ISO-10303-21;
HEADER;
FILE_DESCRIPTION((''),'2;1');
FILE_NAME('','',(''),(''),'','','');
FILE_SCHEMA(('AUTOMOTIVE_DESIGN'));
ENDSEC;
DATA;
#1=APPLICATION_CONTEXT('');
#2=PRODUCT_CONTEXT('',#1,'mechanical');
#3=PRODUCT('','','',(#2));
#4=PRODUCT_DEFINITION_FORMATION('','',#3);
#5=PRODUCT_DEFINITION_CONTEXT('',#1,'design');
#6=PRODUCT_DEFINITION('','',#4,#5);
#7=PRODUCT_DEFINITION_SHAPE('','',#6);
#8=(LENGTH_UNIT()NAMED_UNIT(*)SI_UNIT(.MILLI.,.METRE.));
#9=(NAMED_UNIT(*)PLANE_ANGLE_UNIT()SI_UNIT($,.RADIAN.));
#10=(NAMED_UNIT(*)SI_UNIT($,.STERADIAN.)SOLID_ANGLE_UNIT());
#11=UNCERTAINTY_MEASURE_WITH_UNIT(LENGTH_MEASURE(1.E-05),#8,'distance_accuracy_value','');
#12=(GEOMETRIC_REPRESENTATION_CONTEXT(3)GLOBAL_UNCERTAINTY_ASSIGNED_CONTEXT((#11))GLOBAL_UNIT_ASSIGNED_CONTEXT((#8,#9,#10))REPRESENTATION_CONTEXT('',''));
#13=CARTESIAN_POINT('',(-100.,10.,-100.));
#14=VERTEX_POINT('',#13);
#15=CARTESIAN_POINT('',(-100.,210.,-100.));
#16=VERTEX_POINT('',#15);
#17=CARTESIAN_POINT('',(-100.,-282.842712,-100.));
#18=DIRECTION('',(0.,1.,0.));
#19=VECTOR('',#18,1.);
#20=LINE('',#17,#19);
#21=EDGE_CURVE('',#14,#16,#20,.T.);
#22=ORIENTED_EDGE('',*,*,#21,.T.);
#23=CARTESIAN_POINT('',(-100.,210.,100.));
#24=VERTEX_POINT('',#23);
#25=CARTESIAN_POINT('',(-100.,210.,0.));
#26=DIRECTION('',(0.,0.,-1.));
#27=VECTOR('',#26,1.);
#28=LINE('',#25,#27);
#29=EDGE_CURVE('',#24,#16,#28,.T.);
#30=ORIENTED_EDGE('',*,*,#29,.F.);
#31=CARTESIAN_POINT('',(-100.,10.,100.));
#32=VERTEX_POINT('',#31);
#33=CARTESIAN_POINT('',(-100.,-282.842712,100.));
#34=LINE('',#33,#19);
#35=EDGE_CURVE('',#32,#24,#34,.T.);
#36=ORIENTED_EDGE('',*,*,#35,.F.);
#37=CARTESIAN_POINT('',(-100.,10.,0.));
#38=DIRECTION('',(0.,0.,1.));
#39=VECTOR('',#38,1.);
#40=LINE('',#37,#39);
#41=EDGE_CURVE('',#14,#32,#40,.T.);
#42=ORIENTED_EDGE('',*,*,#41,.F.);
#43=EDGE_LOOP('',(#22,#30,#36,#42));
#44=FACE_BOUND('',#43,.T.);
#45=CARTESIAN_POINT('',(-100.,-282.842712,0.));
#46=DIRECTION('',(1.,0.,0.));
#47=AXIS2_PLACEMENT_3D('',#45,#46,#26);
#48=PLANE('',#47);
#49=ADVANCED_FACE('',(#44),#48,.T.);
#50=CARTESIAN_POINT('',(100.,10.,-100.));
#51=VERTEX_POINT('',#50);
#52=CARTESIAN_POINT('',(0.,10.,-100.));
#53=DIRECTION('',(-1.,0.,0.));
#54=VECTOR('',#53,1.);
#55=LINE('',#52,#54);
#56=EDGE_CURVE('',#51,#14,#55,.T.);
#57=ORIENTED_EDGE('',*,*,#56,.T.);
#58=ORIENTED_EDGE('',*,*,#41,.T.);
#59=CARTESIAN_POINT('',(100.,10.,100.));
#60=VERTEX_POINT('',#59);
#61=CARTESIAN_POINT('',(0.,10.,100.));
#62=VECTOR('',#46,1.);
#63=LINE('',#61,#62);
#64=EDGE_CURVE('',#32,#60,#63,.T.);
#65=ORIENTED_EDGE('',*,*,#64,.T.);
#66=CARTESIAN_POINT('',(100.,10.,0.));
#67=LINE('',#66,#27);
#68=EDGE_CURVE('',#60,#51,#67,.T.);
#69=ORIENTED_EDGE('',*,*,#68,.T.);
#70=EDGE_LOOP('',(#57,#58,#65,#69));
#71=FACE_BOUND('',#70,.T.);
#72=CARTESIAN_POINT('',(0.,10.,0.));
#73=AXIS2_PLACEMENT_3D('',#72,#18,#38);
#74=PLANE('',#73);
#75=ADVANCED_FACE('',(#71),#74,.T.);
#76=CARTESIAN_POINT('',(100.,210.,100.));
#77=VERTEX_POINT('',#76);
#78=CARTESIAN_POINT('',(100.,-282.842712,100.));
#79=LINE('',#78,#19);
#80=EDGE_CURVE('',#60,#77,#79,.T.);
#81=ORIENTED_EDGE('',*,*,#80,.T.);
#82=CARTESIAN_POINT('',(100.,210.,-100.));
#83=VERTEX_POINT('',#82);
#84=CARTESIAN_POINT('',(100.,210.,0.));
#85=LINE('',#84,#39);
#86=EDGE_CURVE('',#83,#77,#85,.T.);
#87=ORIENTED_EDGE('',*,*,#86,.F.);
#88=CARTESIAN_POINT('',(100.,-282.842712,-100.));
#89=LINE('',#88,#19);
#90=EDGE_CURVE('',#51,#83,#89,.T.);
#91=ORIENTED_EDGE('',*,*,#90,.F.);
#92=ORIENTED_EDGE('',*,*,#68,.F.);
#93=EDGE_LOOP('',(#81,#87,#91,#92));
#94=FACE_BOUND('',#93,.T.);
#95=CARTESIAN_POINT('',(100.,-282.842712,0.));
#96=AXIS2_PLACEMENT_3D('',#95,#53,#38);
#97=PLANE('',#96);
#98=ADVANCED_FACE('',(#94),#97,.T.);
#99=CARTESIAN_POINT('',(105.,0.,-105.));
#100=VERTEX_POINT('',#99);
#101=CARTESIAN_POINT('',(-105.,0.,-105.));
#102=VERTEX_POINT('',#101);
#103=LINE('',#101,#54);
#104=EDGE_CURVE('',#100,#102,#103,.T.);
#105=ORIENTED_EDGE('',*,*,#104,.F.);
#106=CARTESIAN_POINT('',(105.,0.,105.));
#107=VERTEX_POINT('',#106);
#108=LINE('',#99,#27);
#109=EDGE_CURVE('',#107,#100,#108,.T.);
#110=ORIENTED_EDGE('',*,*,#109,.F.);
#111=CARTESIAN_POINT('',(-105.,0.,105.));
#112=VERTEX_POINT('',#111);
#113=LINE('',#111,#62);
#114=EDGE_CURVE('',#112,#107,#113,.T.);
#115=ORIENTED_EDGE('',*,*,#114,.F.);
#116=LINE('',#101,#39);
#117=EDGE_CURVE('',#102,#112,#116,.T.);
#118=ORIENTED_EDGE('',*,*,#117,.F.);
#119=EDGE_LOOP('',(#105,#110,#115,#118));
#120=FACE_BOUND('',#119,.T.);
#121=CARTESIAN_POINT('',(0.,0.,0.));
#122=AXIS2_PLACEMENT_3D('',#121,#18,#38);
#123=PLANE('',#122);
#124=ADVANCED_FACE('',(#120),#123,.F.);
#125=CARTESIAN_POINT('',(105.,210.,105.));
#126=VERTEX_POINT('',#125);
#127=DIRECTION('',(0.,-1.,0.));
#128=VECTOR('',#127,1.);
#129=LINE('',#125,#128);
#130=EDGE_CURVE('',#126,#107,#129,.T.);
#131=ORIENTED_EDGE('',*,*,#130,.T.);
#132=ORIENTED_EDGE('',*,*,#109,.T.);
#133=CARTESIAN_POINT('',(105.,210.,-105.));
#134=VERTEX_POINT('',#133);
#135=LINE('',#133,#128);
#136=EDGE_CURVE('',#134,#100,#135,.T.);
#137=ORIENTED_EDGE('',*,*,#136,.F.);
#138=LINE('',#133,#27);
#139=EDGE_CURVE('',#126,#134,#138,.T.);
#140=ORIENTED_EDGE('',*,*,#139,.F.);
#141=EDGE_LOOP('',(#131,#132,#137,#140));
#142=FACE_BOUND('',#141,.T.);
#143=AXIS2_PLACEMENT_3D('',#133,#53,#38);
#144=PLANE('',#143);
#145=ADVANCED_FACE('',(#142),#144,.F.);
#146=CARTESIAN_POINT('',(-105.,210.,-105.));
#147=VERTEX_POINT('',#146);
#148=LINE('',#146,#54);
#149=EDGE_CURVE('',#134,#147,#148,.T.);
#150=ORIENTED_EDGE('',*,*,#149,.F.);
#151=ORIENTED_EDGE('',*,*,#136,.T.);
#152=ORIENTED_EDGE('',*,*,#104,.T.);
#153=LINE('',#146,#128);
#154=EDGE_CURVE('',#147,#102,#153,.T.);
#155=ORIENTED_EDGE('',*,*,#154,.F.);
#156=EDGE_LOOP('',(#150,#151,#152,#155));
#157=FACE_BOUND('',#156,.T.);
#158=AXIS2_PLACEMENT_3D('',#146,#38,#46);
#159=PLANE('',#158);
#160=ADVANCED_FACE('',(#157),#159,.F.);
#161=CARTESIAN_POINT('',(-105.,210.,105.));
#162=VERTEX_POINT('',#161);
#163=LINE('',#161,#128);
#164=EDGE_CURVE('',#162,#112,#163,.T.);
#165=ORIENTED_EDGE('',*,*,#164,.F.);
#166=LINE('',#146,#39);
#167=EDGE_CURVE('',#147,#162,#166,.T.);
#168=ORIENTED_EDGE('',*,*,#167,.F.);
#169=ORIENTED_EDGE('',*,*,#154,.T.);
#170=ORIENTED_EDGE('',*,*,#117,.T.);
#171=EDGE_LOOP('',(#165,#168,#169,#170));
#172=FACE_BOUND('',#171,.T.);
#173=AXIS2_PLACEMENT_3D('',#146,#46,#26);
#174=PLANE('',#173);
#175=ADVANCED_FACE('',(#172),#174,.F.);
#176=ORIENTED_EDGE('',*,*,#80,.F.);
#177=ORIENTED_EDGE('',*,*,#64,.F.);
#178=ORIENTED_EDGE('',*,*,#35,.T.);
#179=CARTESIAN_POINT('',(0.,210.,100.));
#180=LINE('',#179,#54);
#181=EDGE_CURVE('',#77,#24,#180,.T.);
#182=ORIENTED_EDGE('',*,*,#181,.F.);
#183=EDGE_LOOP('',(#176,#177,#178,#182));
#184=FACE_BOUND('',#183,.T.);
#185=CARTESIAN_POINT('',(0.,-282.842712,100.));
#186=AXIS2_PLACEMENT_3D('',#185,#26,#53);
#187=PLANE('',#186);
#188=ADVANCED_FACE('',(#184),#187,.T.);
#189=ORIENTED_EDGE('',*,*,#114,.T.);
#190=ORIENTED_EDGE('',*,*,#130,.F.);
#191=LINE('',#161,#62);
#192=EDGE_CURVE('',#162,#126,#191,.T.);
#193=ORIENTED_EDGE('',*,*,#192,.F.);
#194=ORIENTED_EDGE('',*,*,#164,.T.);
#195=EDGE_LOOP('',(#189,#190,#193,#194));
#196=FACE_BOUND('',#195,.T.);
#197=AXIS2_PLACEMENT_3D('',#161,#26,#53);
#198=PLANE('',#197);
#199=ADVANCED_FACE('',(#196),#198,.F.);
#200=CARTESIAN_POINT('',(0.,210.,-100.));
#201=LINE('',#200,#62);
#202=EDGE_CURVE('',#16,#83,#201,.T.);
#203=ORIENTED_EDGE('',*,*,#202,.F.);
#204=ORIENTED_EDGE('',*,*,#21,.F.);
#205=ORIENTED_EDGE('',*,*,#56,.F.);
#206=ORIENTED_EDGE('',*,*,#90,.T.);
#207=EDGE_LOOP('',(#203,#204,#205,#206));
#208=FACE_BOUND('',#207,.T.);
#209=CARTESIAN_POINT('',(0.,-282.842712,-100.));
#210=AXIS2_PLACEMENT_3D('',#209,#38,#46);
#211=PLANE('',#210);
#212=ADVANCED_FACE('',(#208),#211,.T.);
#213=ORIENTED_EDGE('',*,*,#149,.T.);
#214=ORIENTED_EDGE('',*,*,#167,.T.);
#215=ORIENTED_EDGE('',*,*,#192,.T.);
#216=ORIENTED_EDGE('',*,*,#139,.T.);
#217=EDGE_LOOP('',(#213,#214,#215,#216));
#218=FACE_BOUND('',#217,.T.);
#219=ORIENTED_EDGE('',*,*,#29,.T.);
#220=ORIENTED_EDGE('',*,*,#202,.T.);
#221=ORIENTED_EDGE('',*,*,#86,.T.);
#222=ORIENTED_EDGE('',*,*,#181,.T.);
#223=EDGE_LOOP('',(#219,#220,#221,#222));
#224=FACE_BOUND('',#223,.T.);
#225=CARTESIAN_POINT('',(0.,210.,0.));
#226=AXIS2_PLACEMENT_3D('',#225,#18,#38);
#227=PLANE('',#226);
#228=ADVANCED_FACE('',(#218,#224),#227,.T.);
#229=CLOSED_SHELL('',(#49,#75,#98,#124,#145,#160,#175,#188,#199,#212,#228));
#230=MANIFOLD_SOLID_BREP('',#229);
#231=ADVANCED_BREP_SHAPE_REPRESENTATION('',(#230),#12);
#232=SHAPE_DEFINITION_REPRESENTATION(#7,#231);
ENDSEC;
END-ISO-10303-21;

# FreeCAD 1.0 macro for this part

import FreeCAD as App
import Part
import Sketcher

V = App.Vector


def add_polygon(sketch, points):
    """Adds a closed chain of lines whose ends are joined by coincident constraints."""
    first, n = sketch.GeometryCount, len(points)
    for a, b in zip(points, points[1:] + points[:1]):
        sketch.addGeometry(Part.LineSegment(App.Vector(*a, 0), App.Vector(*b, 0)), False)
    for i in range(n):
        sketch.addConstraint(Sketcher.Constraint("Coincident", first + i, 2, first + (i + 1) % n, 1))

doc = App.newDocument("Part")
body = doc.addObject("PartDesign::Body", "Body")

# Sketch on XZ plane
sketch1 = body.newObject("Sketcher::SketchObject", "Sketch")
sketch1.AttachmentSupport = (doc.getObject("XZ_Plane"), [""])
sketch1.MapMode = "FlatFace"
add_polygon(sketch1, [(-105, -105), (-105, 105), (105, 105), (105, -105)])  # lines 0-3
sketch1.addConstraint([
    Sketcher.Constraint("Vertical", 0),
    Sketcher.Constraint("Horizontal", 1),
    Sketcher.Constraint("Vertical", 2),
    Sketcher.Constraint("Horizontal", 3),
    Sketcher.Constraint("Symmetric", 0, 2, 2, 2, -1, 1),
    Sketcher.Constraint("Equal", 3, 0),
    Sketcher.Constraint("DistanceX", 1, 1, 1, 2, 210.0),
])
pad1 = body.newObject("PartDesign::Pad", "Pad")
pad1.Profile = sketch1
pad1.Length = 210
pad1.Reversed = True

# Sketch on XZ plane
sketch2 = body.newObject("Sketcher::SketchObject", "Sketch001")
sketch2.AttachmentSupport = (doc.getObject("XZ_Plane"), [""])
sketch2.MapMode = "FlatFace"
sketch2.AttachmentOffset = App.Placement(V(0, 0, -210), App.Rotation())
add_polygon(sketch2, [(-100, -100), (-100, 100), (100, 100), (100, -100)])  # lines 0-3
sketch2.addConstraint([
    Sketcher.Constraint("Vertical", 0),
    Sketcher.Constraint("Horizontal", 1),
    Sketcher.Constraint("Vertical", 2),
    Sketcher.Constraint("Horizontal", 3),
    Sketcher.Constraint("Symmetric", 0, 2, 2, 2, -1, 1),
    Sketcher.Constraint("Equal", 3, 0),
    Sketcher.Constraint("DistanceX", 1, 1, 1, 2, 200.0),
])
pocket1 = body.newObject("PartDesign::Pocket", "Pocket")
pocket1.Profile = sketch2
pocket1.Length = 200
pocket1.Reversed = True

doc.recompute()
